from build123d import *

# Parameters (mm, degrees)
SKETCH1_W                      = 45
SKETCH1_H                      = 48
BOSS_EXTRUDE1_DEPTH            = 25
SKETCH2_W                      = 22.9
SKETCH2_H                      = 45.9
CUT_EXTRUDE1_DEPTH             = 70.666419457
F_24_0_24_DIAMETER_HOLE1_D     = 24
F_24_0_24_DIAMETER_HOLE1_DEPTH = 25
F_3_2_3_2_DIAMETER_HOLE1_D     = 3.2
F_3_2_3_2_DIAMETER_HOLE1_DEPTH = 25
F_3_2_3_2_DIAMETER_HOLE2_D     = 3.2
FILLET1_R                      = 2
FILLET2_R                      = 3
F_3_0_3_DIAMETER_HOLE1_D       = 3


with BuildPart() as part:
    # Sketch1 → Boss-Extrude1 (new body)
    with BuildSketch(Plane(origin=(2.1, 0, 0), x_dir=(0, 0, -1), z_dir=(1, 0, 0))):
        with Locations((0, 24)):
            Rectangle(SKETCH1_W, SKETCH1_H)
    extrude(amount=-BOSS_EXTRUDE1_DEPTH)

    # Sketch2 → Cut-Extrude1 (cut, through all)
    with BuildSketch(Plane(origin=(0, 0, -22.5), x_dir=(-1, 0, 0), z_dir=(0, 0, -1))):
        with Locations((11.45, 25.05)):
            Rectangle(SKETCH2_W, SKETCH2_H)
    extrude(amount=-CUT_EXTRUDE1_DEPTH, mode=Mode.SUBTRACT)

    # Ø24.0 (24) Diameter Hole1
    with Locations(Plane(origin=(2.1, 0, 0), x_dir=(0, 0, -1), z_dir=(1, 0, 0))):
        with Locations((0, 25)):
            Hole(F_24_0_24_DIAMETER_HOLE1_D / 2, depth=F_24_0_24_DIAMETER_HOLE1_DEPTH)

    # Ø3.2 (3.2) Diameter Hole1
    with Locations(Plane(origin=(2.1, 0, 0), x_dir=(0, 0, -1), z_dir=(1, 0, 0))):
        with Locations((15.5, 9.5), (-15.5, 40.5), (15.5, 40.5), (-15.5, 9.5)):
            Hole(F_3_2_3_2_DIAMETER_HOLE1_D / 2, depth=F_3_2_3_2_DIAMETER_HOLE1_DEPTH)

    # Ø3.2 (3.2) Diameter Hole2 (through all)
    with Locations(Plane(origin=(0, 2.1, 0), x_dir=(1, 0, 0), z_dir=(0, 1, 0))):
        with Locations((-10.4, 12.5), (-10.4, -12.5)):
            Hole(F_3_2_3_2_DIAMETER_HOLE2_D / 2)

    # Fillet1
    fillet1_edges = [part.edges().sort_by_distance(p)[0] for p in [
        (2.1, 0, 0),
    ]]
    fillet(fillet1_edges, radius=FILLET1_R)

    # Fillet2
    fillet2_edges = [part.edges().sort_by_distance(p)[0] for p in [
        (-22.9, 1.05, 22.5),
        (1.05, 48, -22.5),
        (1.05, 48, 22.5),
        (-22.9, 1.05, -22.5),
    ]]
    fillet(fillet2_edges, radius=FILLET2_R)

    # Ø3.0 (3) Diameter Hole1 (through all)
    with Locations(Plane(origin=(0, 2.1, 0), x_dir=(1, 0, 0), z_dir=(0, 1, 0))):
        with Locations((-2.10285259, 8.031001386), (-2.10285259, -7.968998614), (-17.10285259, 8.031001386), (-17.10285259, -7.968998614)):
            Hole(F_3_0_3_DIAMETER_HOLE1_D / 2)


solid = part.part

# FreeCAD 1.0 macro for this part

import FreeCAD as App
import Part
import Sketcher

V = App.Vector


def edges_at(feature, points):
    """Names of the edges that pass closest to the given points."""
    edges = feature.Shape.Edges
    near = lambda p: min(range(len(edges)), key=lambda i: edges[i].distToShape(Part.Vertex(*p))[0])
    return sorted({f"Edge{near(p) + 1}" for p in points})


def add_polygon(sketch, points):
    """Adds a closed chain of lines whose ends are joined by coincident constraints."""
    first, n = sketch.GeometryCount, len(points)
    for a, b in zip(points, points[1:] + points[:1]):
        sketch.addGeometry(Part.LineSegment(App.Vector(*a, 0), App.Vector(*b, 0)), False)
    for i in range(n):
        sketch.addConstraint(Sketcher.Constraint("Coincident", first + i, 2, first + (i + 1) % n, 1))

doc = App.newDocument("Part")
body = doc.addObject("PartDesign::Body", "Body")

# Sketch on YZ plane
sketch1 = body.newObject("Sketcher::SketchObject", "Sketch")
sketch1.AttachmentSupport = (doc.getObject("YZ_Plane"), [""])
sketch1.MapMode = "FlatFace"
sketch1.AttachmentOffset = App.Placement(V(0, 0, 2.1), App.Rotation())
add_polygon(sketch1, [(48, 22), (0, 22), (0, -22), (48, -22)])  # lines 0-3
sketch1.addConstraint([
    Sketcher.Constraint("Horizontal", 0),
    Sketcher.Constraint("Vertical", 1),
    Sketcher.Constraint("Horizontal", 2),
    Sketcher.Constraint("Vertical", 3),
    Sketcher.Constraint("Symmetric", 0, 2, 1, 2, -1, 1),
    Sketcher.Constraint("DistanceX", 0, 2, 0, 1, 48.0),
    Sketcher.Constraint("DistanceY", 1, 2, 1, 1, 45.0),
])
pad1 = body.newObject("PartDesign::Pad", "Pad")
pad1.Profile = sketch1
pad1.Length = 25
pad1.Reversed = True

# Sketch on XY plane
sketch2 = body.newObject("Sketcher::SketchObject", "Sketch001")
sketch2.AttachmentSupport = (doc.getObject("XY_Plane"), [""])
sketch2.MapMode = "FlatFace"
sketch2.AttachmentOffset = App.Placement(V(0, 0, -22.5), App.Rotation())
add_polygon(sketch2, [(0, 48), (0, 2), (-23, 2), (-23, 48)])  # lines 0-3
sketch2.addConstraint([
    Sketcher.Constraint("Vertical", 0),
    Sketcher.Constraint("Horizontal", 1),
    Sketcher.Constraint("Vertical", 2),
    Sketcher.Constraint("Horizontal", 3),
    Sketcher.Constraint("PointOnObject", 0, 2, -2),
    Sketcher.Constraint("DistanceX", 1, 2, 1, 1, 22.9),
    Sketcher.Constraint("DistanceY", 0, 2, 0, 1, 45.9),
    Sketcher.Constraint("DistanceY", -1, 1, 2, 2, 48.0),
])
pocket1 = body.newObject("PartDesign::Pocket", "Pocket")
pocket1.Profile = sketch2
pocket1.Type = "ThroughAll"
pocket1.Reversed = True

# Sketch on YZ plane
sketch3 = body.newObject("Sketcher::SketchObject", "Sketch002")
sketch3.AttachmentSupport = (doc.getObject("YZ_Plane"), [""])
sketch3.MapMode = "FlatFace"
sketch3.AttachmentOffset = App.Placement(V(0, 0, 2.1), App.Rotation())
sketch3.addGeometry(Part.Circle(V(25, 0, 0), V(0, 0, 1), 12), False)
sketch3.addConstraint([
    Sketcher.Constraint("PointOnObject", 0, 3, -1),
    Sketcher.Constraint("Diameter", 0, 24.0),
    Sketcher.Constraint("DistanceX", -1, 1, 0, 3, 25.0),
])
doc.recompute()
hole = body.newObject("PartDesign::Hole", "Hole")
hole.Profile = sketch3
hole.ThreadType = "None"
hole.Diameter = 24
hole.DepthType = "Dimension"
hole.Depth = 25
hole.DrillPoint = "Flat"

# Sketch on YZ plane
sketch4 = body.newObject("Sketcher::SketchObject", "Sketch003")
sketch4.AttachmentSupport = (doc.getObject("YZ_Plane"), [""])
sketch4.MapMode = "FlatFace"
sketch4.AttachmentOffset = App.Placement(V(0, 0, 2.1), App.Rotation())
sketch4.addGeometry([
    Part.Circle(V(9.5, -15.5, 0), V(0, 0, 1), 1.6),
    Part.Circle(V(40.5, 15.5, 0), V(0, 0, 1), 1.6),
    Part.Circle(V(40.5, -15.5, 0), V(0, 0, 1), 1.6),
    Part.Circle(V(9.5, 15.5, 0), V(0, 0, 1), 1.6),
], False)
sketch4.addConstraint([
    Sketcher.Constraint("Equal", 0, 1),
    Sketcher.Constraint("Equal", 1, 2),
    Sketcher.Constraint("Equal", 2, 3),
    Sketcher.Constraint("Symmetric", 1, 3, 2, 3, -1),
    Sketcher.Constraint("Symmetric", 0, 3, 3, 3, -1),
    Sketcher.Constraint("Horizontal", 0, 3, 2, 3),
    Sketcher.Constraint("Diameter", 0, 3.2),
    Sketcher.Constraint("DistanceX", 0, 3, 1, 3, 31.0),
    Sketcher.Constraint("DistanceY", 0, 3, 1, 3, 31.0),
    Sketcher.Constraint("DistanceX", -1, 1, 0, 3, 9.5),
])
doc.recompute()
hole2 = body.newObject("PartDesign::Hole", "Hole001")
hole2.Profile = sketch4
hole2.ThreadType = "None"
hole2.Diameter = 3.2
hole2.DepthType = "Dimension"
hole2.Depth = 25
hole2.DrillPoint = "Flat"

# Sketch on XZ plane
sketch5 = body.newObject("Sketcher::SketchObject", "Sketch004")
sketch5.AttachmentSupport = (doc.getObject("XZ_Plane"), [""])
sketch5.MapMode = "FlatFace"
sketch5.AttachmentOffset = App.Placement(V(0, 0, -2.1), App.Rotation())
sketch5.addGeometry([
    Part.Circle(V(-10.4, -12.5, 0), V(0, 0, 1), 1.6),
    Part.Circle(V(-10.4, 12.5, 0), V(0, 0, 1), 1.6),
], False)
sketch5.addConstraint([
    Sketcher.Constraint("Equal", 0, 1),
    Sketcher.Constraint("Symmetric", 0, 3, 1, 3, -1),
    Sketcher.Constraint("Diameter", 0, 3.2),
    Sketcher.Constraint("DistanceY", 0, 3, 1, 3, 25.0),
    Sketcher.Constraint("DistanceX", 0, 3, -1, 1, 10.4),
])
doc.recompute()
hole3 = body.newObject("PartDesign::Hole", "Hole002")
hole3.Profile = sketch5
hole3.ThreadType = "None"
hole3.Diameter = 3.2
hole3.DepthType = "ThroughAll"
hole3.Reversed = True
doc.recompute()

fillet = body.newObject("PartDesign::Fillet", "Fillet")
fillet.Base = (hole3, edges_at(hole3, [(2.1, 0, 0)]))
fillet.Radius = 2
doc.recompute()

fillet2 = body.newObject("PartDesign::Fillet", "Fillet001")
fillet2.Base = (fillet, edges_at(fillet, [
    (-22.9, 1.05, 22.5),
    (1.05, 48, -22.5),
    (1.05, 48, 22.5),
    (-22.9, 1.05, -22.5),
]))
fillet2.Radius = 3

# Sketch on XZ plane
sketch6 = body.newObject("Sketcher::SketchObject", "Sketch005")
sketch6.AttachmentSupport = (doc.getObject("XZ_Plane"), [""])
sketch6.MapMode = "FlatFace"
sketch6.AttachmentOffset = App.Placement(V(0, 0, -2.1), App.Rotation())
sketch6.addGeometry([
    Part.Circle(V(-2.1, -8, 0), V(0, 0, 1), 1.5),
    Part.Circle(V(-2.1, 8, 0), V(0, 0, 1), 1.5),
    Part.Circle(V(-17.1, -8, 0), V(0, 0, 1), 1.5),
    Part.Circle(V(-17.1, 8, 0), V(0, 0, 1), 1.5),
], False)
sketch6.addConstraint([
    Sketcher.Constraint("Equal", 0, 1),
    Sketcher.Constraint("Equal", 1, 2),
    Sketcher.Constraint("Equal", 2, 3),
    Sketcher.Constraint("Horizontal", 0, 3, 2, 3),
    Sketcher.Constraint("Horizontal", 1, 3, 3, 3),
    Sketcher.Constraint("Vertical", 0, 3, 1, 3),
    Sketcher.Constraint("Vertical", 2, 3, 3, 3),
    Sketcher.Constraint("Diameter", 0, 3.0),
    Sketcher.Constraint("DistanceY", 0, 3, 1, 3, 16.0),
    Sketcher.Constraint("DistanceX", 2, 3, 0, 3, 15.0),
    Sketcher.Constraint("DistanceY", 0, 3, -1, 1, 8.031001),
    Sketcher.Constraint("DistanceX", 0, 3, -1, 1, 2.102853),
])
doc.recompute()
hole4 = body.newObject("PartDesign::Hole", "Hole003")
hole4.Profile = sketch6
hole4.ThreadType = "None"
hole4.Diameter = 3
hole4.DepthType = "ThroughAll"
hole4.Reversed = True

doc.recompute()
